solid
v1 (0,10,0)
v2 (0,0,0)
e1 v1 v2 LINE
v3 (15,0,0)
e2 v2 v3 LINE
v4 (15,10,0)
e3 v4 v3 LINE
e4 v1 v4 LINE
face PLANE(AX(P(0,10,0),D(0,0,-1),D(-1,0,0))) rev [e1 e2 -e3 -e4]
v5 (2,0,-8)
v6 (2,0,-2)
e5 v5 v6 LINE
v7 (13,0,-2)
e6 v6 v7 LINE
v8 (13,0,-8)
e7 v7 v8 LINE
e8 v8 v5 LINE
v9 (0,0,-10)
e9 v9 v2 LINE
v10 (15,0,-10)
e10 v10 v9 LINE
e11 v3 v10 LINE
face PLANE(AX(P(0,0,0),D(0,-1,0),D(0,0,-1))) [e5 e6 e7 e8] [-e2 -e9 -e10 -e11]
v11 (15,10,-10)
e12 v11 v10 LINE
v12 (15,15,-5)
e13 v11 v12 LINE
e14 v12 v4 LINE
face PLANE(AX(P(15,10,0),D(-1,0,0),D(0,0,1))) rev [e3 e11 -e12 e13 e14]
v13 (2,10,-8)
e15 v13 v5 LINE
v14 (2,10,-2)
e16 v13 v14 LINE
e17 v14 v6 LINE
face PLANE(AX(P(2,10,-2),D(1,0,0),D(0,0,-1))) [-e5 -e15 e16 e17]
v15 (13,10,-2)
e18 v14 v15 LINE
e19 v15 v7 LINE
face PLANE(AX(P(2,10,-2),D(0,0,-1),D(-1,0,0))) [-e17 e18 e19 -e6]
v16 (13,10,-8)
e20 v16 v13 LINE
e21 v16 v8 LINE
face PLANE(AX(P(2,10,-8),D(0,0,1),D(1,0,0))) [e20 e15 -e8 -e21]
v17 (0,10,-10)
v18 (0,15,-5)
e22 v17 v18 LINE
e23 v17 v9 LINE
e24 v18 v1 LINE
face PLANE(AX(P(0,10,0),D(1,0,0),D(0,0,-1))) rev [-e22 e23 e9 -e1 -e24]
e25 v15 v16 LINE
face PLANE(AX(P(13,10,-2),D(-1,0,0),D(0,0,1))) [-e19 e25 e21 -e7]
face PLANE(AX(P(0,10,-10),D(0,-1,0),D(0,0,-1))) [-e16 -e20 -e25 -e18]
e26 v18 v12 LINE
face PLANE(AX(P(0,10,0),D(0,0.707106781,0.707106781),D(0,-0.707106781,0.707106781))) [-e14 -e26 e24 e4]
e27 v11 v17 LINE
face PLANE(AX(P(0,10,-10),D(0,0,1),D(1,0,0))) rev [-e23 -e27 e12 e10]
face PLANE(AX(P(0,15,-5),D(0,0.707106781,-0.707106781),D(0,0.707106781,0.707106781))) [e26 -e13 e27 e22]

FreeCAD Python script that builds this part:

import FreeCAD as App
import Part
import Sketcher
from FreeCAD import Vector
Q = App.Units.Quantity

doc = App.newDocument("Part")
body = doc.addObject("PartDesign::Body", "Body")

# Sketch on XZ plane
sketch1 = doc.addObject("Sketcher::SketchObject", "Sketch")
body.addObject(sketch1)
sketch1.AttachmentSupport = (doc.XZ_Plane, [""])
sketch1.MapMode = "FlatFace"
sketch1.addGeometry(Part.LineSegment(Vector(0, -10, 0), Vector(0, 0, 0)), False)
sketch1.addGeometry(Part.LineSegment(Vector(0, 0, 0), Vector(15, 0, 0)), False)
sketch1.addGeometry(Part.LineSegment(Vector(15, 0, 0), Vector(15, -10, 0)), False)
sketch1.addGeometry(Part.LineSegment(Vector(15, -10, 0), Vector(0, -10, 0)), False)
sketch1.addGeometry(Part.LineSegment(Vector(13, -2, 0), Vector(2, -2, 0)), False)
sketch1.addGeometry(Part.LineSegment(Vector(2, -2, 0), Vector(2, -8, 0)), False)
sketch1.addGeometry(Part.LineSegment(Vector(2, -8, 0), Vector(13, -8, 0)), False)
sketch1.addGeometry(Part.LineSegment(Vector(13, -8, 0), Vector(13, -2, 0)), False)
sketch1.addConstraint(Sketcher.Constraint("Coincident", 0, 2, 1, 1))
sketch1.addConstraint(Sketcher.Constraint("Coincident", 1, 2, 2, 1))
sketch1.addConstraint(Sketcher.Constraint("Coincident", 2, 2, 3, 1))
sketch1.addConstraint(Sketcher.Constraint("Coincident", 3, 2, 0, 1))
sketch1.addConstraint(Sketcher.Constraint("Coincident", 4, 2, 5, 1))
sketch1.addConstraint(Sketcher.Constraint("Coincident", 5, 2, 6, 1))
sketch1.addConstraint(Sketcher.Constraint("Coincident", 6, 2, 7, 1))
sketch1.addConstraint(Sketcher.Constraint("Coincident", 7, 2, 4, 1))
sketch1.addConstraint(Sketcher.Constraint("Vertical", 0))
sketch1.addConstraint(Sketcher.Constraint("Horizontal", 1))
sketch1.addConstraint(Sketcher.Constraint("Vertical", 2))
sketch1.addConstraint(Sketcher.Constraint("Horizontal", 3))
sketch1.addConstraint(Sketcher.Constraint("Horizontal", 4))
sketch1.addConstraint(Sketcher.Constraint("Vertical", 5))
sketch1.addConstraint(Sketcher.Constraint("Horizontal", 6))
sketch1.addConstraint(Sketcher.Constraint("Vertical", 7))
sketch1.addConstraint(Sketcher.Constraint("Coincident", 0, 2, -1, 1))
sketch1.addConstraint(Sketcher.Constraint("DistanceX", 1, 1, 1, 2, Q("15 mm")))
sketch1.addConstraint(Sketcher.Constraint("DistanceX", 4, 2, 4, 1, Q("11 mm")))
sketch1.addConstraint(Sketcher.Constraint("DistanceY", 0, 1, 0, 2, Q("10 mm")))
sketch1.addConstraint(Sketcher.Constraint("DistanceY", 5, 2, 5, 1, Q("6 mm")))
sketch1.addConstraint(Sketcher.Constraint("DistanceX", -1, 1, 4, 2, Q("2 mm")))
sketch1.addConstraint(Sketcher.Constraint("DistanceY", 4, 2, -1, 1, Q("2 mm")))
pad1 = doc.addObject("PartDesign::Pad", "Pad")
body.addObject(pad1)
pad1.Profile = sketch1
pad1.Length = 10
pad1.Reversed = True

# Sketch on YZ plane
sketch2 = doc.addObject("Sketcher::SketchObject", "Sketch001")
body.addObject(sketch2)
sketch2.AttachmentSupport = (doc.YZ_Plane, [""])
sketch2.MapMode = "FlatFace"
sketch2.AttachmentOffset = App.Placement(Vector(0, 0, 15), App.Rotation())
sketch2.addGeometry(Part.LineSegment(Vector(15, -5, 0), Vector(10, 0, 0)), False)
sketch2.addGeometry(Part.LineSegment(Vector(10, 0, 0), Vector(10, -10, 0)), False)
sketch2.addGeometry(Part.LineSegment(Vector(10, -10, 0), Vector(15, -5, 0)), False)
sketch2.addConstraint(Sketcher.Constraint("Coincident", 0, 2, 1, 1))
sketch2.addConstraint(Sketcher.Constraint("Coincident", 1, 2, 2, 1))
sketch2.addConstraint(Sketcher.Constraint("Coincident", 2, 2, 0, 1))
sketch2.addConstraint(Sketcher.Constraint("Vertical", 1))
sketch2.addConstraint(Sketcher.Constraint("PointOnObject", 0, 2, -1))
sketch2.addConstraint(Sketcher.Constraint("Perpendicular", 0, 2))
sketch2.addConstraint(Sketcher.Constraint("Equal", 0, 2))
sketch2.addConstraint(Sketcher.Constraint("DistanceY", 1, 2, 1, 1, Q("10 mm")))
sketch2.addConstraint(Sketcher.Constraint("DistanceX", -1, 1, 0, 2, Q("10 mm")))
pad2 = doc.addObject("PartDesign::Pad", "Pad001")
body.addObject(pad2)
pad2.Profile = sketch2
pad2.Length = 15
pad2.Reversed = True

doc.recompute()
